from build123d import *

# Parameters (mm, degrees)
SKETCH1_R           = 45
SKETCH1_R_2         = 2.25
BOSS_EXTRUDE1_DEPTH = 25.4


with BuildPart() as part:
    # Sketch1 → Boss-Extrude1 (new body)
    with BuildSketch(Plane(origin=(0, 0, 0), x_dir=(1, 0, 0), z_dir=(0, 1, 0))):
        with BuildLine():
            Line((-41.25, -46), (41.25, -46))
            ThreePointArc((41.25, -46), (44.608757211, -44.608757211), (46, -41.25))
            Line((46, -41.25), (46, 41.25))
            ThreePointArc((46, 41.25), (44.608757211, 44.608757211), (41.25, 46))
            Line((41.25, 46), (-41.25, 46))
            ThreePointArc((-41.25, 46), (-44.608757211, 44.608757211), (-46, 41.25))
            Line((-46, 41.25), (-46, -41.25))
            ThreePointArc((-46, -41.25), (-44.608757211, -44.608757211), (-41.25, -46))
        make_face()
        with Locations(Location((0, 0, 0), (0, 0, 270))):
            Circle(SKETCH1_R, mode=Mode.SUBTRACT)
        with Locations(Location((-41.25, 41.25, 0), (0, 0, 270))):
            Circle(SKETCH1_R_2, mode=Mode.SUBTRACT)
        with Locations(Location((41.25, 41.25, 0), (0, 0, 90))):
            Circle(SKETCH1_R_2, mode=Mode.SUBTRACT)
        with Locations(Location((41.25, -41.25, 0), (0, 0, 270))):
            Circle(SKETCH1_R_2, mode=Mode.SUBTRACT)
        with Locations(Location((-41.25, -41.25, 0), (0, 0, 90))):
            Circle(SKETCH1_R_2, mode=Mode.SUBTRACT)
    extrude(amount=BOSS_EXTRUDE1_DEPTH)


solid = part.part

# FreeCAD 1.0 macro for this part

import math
import FreeCAD as App
import Part
import Sketcher

V = App.Vector
Q = App.Units.Quantity

doc = App.newDocument("Part")
body = doc.addObject("PartDesign::Body", "Body")

# Sketch on XZ plane
sketch1 = doc.addObject("Sketcher::SketchObject", "Sketch")
body.addObject(sketch1)
sketch1.AttachmentSupport = (doc.XZ_Plane, [""])
sketch1.MapMode = "FlatFace"
sketch1.addGeometry([
    Part.LineSegment(V(-41.2, 46, 0), V(41.2, 46, 0)),  # 0
    Part.ArcOfCircle(Part.Circle(V(41.3, 41.3, 0), V(0, 0, 1), 4.7), math.radians(0), math.radians(90)),  # 1
    Part.LineSegment(V(46, 41.2, 0), V(46, -41.2, 0)),  # 2
    Part.ArcOfCircle(Part.Circle(V(41.3, -41.3, 0), V(0, 0, 1), 4.7), math.radians(-90), math.radians(0)),  # 3
    Part.LineSegment(V(41.2, -46, 0), V(-41.2, -46, 0)),  # 4
    Part.ArcOfCircle(Part.Circle(V(-41.3, -41.3, 0), V(0, 0, 1), 4.7), math.radians(180), math.radians(270)),  # 5
    Part.LineSegment(V(-46, -41.2, 0), V(-46, 41.2, 0)),  # 6
    Part.ArcOfCircle(Part.Circle(V(-41.3, 41.3, 0), V(0, 0, 1), 4.7), math.radians(90), math.radians(180)),  # 7
    Part.Circle(V(-41.2, 41.2, 0), V(0, 0, 1), 2.2),  # 8
    Part.Circle(V(41.2, 41.2, 0), V(0, 0, 1), 2.2),  # 9
    Part.Circle(V(-41.2, -41.2, 0), V(0, 0, 1), 2.2),  # 10
    Part.Circle(V(0, 0, 0), V(0, 0, 1), 45),  # 11
    Part.Circle(V(41.2, -41.2, 0), V(0, 0, 1), 2.2),  # 12
], False)
sketch1.addConstraint([
    Sketcher.Constraint("Tangent", 0, 2, 1, 2),
    Sketcher.Constraint("Tangent", 1, 1, 2, 1),
    Sketcher.Constraint("Tangent", 2, 2, 3, 2),
    Sketcher.Constraint("Tangent", 3, 1, 4, 1),
    Sketcher.Constraint("Tangent", 4, 2, 5, 2),
    Sketcher.Constraint("Tangent", 5, 1, 6, 1),
    Sketcher.Constraint("Tangent", 6, 2, 7, 2),
    Sketcher.Constraint("Tangent", 7, 1, 0, 1),
    Sketcher.Constraint("Horizontal", 0),
    Sketcher.Constraint("Vertical", 2),
    Sketcher.Constraint("Horizontal", 4),
    Sketcher.Constraint("Vertical", 6),
    Sketcher.Constraint("Coincident", 11, 3, -1, 1),
    Sketcher.Constraint("Coincident", 8, 3, 7, 3),
    Sketcher.Constraint("Coincident", 9, 3, 1, 3),
    Sketcher.Constraint("Coincident", 10, 3, 5, 3),
    Sketcher.Constraint("Coincident", 12, 3, 3, 3),
    Sketcher.Constraint("Equal", 1, 3),
    Sketcher.Constraint("Equal", 3, 5),
    Sketcher.Constraint("Equal", 5, 7),
    Sketcher.Constraint("Equal", 8, 9),
    Sketcher.Constraint("Equal", 9, 10),
    Sketcher.Constraint("Equal", 10, 12),
    Sketcher.Constraint("Symmetric", 1, 3, 5, 3, -1, 1),
    Sketcher.Constraint("Equal", 4, 2),
    Sketcher.Constraint("Diameter", 11, Q("90 mm")),
    Sketcher.Constraint("Diameter", 8, Q("4.5 mm")),
    Sketcher.Constraint("Radius", 1, Q("4.75 mm")),
    Sketcher.Constraint("DistanceX", 0, 1, 0, 2, Q("82.5 mm")),
])
pad1 = doc.addObject("PartDesign::Pad", "Pad")
body.addObject(pad1)
pad1.Profile = sketch1
pad1.Length = 25.4
pad1.Reversed = True

doc.recompute()
